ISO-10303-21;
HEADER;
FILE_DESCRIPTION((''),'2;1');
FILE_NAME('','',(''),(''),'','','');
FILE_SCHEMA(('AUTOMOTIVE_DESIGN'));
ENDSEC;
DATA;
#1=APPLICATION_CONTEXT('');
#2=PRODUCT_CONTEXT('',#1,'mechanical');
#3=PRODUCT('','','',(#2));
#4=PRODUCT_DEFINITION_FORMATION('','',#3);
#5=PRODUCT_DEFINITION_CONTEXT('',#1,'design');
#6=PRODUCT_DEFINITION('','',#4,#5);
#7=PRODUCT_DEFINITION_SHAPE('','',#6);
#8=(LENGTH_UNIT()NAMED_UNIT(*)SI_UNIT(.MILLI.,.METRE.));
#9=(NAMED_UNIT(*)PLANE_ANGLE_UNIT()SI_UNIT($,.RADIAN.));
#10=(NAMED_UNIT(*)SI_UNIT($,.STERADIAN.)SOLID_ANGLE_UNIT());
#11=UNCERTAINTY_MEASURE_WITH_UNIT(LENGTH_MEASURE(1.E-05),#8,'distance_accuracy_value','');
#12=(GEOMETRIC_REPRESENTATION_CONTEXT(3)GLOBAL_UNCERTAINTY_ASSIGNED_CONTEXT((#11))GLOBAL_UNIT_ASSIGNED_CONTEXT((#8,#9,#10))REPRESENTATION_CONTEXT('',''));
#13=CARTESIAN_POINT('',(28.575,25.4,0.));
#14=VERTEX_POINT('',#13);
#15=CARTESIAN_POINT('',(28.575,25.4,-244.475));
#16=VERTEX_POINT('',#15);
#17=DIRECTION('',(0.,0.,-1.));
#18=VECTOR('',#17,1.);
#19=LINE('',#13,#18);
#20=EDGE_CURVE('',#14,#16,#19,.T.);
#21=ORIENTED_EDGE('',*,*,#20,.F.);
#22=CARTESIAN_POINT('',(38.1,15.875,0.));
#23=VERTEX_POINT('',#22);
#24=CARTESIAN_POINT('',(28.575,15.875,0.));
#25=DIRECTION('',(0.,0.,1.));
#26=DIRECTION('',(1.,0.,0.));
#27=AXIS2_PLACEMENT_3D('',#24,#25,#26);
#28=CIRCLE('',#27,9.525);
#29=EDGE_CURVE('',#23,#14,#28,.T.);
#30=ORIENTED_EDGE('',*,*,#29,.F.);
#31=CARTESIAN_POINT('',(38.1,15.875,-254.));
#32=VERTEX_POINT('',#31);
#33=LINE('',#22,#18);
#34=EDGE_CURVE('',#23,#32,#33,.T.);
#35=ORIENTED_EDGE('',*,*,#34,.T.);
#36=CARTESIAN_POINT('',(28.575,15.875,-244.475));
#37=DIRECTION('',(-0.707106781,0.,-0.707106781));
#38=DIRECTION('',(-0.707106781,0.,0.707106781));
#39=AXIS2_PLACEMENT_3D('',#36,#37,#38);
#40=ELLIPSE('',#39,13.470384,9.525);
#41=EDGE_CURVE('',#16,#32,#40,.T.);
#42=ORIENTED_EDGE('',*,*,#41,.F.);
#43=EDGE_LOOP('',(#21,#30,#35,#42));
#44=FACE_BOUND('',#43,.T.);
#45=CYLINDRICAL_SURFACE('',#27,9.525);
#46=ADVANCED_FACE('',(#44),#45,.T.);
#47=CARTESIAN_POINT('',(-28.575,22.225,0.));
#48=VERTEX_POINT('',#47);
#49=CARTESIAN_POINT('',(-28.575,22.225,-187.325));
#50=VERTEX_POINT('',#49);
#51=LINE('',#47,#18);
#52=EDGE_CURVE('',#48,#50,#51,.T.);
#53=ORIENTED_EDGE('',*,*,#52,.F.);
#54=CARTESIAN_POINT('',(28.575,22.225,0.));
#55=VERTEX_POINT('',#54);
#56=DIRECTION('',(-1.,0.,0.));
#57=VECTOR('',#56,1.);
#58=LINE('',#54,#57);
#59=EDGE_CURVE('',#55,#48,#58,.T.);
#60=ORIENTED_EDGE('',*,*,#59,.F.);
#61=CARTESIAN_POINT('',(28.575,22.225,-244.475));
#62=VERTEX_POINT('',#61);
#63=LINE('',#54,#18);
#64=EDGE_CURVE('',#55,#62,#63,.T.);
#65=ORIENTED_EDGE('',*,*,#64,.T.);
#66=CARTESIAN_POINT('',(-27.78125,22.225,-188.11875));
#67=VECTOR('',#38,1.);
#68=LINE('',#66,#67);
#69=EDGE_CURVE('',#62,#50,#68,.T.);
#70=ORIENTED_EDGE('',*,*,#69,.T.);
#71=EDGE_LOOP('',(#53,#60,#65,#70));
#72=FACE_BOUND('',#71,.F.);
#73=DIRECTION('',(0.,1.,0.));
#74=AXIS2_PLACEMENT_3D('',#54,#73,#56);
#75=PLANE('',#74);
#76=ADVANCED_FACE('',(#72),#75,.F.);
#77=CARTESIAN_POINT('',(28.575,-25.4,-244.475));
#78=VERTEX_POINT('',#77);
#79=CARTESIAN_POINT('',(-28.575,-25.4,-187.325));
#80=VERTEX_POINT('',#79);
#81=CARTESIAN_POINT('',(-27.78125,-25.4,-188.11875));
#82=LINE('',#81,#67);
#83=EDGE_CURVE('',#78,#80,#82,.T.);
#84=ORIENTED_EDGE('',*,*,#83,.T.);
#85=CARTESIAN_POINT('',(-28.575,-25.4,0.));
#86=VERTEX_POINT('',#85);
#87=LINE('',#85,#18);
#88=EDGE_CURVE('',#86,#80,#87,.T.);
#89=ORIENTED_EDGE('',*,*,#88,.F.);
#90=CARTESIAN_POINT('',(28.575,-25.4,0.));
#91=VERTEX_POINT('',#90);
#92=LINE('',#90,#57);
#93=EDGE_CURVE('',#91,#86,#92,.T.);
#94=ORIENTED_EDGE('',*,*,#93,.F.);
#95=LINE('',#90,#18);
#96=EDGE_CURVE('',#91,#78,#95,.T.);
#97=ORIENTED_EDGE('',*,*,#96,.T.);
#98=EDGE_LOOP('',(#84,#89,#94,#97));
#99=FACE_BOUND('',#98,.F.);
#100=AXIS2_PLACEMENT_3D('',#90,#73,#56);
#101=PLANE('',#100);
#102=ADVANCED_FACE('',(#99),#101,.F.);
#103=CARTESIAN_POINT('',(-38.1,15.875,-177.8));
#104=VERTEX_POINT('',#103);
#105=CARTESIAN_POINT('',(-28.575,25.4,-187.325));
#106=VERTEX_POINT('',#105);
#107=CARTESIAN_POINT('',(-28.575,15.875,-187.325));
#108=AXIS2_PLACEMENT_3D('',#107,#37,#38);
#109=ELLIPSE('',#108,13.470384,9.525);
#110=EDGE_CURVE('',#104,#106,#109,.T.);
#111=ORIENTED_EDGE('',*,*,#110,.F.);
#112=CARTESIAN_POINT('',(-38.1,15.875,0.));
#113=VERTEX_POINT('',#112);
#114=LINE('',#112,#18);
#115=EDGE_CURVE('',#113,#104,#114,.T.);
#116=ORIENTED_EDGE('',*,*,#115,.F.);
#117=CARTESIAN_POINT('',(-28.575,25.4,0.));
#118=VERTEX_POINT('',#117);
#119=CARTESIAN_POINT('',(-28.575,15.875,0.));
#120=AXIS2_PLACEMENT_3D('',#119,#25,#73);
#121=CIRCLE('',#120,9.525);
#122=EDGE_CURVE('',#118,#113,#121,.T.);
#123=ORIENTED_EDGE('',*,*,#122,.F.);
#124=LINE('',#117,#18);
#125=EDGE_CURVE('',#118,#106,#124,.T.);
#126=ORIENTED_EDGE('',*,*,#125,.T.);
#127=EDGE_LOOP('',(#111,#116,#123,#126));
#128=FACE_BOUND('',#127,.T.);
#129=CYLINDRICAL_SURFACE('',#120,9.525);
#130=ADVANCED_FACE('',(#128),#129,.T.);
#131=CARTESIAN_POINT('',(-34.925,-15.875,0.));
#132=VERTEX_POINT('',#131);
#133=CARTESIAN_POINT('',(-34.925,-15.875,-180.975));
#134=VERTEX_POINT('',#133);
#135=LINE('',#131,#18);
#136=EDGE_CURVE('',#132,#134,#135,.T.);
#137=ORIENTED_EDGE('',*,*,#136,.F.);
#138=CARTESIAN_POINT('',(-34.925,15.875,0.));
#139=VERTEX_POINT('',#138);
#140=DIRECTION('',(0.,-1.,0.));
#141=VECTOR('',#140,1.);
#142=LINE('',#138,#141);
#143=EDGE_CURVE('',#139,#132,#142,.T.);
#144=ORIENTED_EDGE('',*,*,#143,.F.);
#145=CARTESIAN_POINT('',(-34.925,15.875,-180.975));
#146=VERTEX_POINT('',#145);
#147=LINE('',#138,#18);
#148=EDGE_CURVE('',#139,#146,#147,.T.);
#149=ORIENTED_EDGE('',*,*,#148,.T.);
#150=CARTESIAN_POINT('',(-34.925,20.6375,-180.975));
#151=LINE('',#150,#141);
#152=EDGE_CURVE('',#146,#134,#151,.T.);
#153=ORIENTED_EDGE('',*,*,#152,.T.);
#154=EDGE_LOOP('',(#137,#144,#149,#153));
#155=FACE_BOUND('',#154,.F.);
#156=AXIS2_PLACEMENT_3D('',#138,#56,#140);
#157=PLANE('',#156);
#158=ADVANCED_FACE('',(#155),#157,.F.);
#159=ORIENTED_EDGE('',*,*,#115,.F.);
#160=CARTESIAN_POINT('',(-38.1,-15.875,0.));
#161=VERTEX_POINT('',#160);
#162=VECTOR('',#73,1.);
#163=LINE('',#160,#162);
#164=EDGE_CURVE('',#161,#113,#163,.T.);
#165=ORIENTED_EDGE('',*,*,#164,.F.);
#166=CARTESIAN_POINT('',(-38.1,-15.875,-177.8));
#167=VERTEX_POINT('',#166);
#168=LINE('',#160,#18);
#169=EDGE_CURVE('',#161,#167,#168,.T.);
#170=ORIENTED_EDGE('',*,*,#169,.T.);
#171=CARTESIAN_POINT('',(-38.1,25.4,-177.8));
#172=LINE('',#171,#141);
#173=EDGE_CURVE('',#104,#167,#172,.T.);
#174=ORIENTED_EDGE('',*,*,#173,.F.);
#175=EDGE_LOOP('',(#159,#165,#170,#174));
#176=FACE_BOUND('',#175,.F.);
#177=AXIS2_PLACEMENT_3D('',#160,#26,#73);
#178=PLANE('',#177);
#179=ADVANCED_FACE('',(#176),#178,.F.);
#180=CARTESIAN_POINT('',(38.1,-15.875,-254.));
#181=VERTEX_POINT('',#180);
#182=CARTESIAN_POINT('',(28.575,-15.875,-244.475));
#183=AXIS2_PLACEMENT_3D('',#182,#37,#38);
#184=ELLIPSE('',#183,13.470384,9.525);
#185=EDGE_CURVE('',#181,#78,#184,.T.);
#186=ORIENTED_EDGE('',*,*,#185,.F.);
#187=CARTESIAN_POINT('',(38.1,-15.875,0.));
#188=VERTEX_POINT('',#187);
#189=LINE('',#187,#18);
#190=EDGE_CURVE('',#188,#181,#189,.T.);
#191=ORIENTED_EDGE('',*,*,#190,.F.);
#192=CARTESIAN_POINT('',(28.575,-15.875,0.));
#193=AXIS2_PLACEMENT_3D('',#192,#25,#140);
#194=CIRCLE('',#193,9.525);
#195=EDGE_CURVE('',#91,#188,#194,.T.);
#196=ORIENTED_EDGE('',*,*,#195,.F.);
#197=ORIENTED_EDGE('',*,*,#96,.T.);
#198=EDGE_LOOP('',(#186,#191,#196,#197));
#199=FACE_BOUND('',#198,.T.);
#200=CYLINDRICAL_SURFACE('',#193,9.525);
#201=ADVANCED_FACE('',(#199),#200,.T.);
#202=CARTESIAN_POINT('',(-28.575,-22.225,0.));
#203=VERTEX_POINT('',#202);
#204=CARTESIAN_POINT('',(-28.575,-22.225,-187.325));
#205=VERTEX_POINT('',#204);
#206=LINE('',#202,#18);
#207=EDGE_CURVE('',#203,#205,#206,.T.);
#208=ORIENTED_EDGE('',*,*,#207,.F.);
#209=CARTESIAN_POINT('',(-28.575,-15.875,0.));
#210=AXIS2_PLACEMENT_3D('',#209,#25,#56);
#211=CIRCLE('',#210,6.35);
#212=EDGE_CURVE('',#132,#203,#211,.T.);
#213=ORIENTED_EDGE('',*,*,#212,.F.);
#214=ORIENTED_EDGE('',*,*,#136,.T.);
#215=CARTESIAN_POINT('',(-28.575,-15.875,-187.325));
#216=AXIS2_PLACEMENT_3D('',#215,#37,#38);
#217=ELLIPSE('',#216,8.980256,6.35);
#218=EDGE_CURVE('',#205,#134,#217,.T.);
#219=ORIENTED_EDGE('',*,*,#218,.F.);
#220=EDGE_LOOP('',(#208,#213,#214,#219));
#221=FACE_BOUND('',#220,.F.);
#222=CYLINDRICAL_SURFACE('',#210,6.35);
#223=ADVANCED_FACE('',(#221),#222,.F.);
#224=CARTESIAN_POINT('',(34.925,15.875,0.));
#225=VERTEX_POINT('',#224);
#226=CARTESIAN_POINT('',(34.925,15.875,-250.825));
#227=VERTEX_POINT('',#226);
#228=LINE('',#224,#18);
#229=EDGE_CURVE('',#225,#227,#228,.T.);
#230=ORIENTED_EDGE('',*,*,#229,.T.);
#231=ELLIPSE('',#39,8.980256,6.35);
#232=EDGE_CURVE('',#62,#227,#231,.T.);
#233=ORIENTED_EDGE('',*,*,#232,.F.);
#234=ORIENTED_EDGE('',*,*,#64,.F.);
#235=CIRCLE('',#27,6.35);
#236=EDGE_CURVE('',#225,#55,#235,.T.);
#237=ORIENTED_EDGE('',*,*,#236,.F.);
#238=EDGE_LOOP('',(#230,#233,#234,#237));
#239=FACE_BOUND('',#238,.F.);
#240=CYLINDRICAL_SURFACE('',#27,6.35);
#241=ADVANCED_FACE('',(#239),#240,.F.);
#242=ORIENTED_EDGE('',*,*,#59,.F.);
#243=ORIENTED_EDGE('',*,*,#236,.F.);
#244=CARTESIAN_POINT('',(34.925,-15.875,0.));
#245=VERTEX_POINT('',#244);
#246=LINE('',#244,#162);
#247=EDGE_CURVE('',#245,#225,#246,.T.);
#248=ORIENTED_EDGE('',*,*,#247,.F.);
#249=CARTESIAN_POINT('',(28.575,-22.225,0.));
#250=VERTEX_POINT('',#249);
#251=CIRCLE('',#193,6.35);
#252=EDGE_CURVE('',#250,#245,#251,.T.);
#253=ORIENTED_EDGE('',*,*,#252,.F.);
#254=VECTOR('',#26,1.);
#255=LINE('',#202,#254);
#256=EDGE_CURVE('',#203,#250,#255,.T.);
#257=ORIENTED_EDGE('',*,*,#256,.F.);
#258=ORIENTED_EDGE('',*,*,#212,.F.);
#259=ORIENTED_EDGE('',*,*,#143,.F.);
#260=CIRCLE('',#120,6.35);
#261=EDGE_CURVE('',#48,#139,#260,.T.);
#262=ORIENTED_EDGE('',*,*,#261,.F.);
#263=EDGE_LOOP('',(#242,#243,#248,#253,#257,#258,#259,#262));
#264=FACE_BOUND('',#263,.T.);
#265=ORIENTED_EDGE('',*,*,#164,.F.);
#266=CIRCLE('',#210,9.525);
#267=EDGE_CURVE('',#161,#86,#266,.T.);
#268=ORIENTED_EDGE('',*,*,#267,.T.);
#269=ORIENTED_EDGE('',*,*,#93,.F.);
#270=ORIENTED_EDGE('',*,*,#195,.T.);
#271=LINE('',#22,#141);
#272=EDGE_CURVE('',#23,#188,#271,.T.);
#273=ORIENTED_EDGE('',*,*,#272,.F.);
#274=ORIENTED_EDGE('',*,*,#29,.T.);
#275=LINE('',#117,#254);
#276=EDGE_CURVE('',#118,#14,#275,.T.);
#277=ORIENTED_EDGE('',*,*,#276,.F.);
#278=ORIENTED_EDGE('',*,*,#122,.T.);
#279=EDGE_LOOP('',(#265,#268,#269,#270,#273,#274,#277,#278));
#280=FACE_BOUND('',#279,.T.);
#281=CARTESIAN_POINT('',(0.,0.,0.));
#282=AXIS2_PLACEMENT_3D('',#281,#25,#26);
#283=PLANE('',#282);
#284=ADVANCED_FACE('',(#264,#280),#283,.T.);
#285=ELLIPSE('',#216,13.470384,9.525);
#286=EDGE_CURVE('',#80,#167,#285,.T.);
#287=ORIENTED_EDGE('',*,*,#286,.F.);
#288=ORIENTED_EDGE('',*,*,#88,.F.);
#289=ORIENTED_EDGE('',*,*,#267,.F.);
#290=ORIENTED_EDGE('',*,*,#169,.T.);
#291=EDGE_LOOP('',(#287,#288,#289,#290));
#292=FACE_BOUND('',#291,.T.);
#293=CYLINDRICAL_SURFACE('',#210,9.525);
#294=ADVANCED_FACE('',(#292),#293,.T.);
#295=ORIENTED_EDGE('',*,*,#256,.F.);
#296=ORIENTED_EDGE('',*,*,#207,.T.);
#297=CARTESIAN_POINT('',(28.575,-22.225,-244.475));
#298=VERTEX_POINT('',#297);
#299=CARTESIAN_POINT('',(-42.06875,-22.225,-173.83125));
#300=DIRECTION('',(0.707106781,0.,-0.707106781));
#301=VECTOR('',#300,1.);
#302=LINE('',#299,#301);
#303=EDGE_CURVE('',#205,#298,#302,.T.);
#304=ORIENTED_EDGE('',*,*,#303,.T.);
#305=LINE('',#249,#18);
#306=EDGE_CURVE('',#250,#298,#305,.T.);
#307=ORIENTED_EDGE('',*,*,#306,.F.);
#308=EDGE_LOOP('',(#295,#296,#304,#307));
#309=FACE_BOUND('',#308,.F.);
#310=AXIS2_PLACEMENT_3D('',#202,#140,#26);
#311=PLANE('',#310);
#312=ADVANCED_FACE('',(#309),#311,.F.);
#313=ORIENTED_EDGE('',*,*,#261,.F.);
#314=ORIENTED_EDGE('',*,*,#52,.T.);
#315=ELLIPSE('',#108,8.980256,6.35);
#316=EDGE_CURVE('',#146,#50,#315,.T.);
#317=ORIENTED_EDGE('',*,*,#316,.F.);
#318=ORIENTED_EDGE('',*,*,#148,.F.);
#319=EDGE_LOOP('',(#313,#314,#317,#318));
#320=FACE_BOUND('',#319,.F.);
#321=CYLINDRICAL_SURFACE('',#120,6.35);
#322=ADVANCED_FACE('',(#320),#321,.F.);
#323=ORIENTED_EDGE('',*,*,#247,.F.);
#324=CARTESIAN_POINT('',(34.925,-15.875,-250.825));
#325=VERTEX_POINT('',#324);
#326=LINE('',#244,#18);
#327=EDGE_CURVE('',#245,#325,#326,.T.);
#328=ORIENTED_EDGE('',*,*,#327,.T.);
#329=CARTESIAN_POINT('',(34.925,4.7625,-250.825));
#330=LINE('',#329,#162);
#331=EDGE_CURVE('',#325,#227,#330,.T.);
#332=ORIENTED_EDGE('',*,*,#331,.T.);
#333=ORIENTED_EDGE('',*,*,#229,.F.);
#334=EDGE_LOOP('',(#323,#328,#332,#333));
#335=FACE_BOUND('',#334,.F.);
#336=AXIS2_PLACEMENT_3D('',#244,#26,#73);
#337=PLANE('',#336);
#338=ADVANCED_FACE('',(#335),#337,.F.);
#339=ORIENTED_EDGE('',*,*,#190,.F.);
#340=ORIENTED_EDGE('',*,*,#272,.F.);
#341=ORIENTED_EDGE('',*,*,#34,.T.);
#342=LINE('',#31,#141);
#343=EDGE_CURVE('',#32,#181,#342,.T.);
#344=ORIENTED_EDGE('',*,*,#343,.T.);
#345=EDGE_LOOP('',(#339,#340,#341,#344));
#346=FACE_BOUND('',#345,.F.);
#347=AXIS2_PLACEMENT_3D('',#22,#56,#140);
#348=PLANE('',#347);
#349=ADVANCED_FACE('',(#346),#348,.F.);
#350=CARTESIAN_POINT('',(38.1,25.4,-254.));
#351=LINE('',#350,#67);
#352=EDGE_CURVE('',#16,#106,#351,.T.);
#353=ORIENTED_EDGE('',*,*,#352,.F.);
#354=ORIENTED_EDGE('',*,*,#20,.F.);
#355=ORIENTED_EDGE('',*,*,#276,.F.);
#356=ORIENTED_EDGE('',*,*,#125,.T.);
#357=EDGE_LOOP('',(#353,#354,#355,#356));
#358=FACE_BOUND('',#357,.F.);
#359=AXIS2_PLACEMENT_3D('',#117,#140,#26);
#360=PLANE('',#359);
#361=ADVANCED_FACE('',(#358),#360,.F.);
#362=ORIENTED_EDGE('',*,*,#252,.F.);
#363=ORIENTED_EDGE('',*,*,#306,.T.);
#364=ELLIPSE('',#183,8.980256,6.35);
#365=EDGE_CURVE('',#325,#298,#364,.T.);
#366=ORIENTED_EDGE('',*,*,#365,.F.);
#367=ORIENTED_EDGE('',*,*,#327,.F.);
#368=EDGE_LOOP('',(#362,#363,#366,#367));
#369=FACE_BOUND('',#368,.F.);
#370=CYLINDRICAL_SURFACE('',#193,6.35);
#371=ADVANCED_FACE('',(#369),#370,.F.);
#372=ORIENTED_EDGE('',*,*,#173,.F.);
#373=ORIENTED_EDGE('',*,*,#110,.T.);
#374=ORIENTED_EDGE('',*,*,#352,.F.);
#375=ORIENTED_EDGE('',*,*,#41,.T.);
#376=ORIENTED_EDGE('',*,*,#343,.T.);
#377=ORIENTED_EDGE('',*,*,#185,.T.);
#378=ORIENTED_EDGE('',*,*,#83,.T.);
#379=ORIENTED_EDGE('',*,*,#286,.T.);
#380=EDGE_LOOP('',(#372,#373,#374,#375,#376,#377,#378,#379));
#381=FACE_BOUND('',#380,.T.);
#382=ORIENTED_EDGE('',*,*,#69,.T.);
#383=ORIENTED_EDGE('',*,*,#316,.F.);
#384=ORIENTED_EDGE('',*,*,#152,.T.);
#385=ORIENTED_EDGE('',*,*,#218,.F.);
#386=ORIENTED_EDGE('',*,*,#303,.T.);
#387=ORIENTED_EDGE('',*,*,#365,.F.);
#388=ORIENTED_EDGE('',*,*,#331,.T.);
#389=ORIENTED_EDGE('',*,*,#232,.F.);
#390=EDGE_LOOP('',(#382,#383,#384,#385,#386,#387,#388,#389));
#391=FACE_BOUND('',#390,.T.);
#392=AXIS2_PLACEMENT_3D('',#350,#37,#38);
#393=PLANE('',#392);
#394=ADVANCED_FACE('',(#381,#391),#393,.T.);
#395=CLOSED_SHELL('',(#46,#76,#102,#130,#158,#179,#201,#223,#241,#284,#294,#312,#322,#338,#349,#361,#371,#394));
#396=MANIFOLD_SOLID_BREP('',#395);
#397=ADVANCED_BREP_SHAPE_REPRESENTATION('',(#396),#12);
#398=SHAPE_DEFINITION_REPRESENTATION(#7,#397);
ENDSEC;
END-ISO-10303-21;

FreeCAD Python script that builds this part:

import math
import FreeCAD as App
import Part
import Sketcher
Q = App.Units.Quantity

doc = App.newDocument("Part")
body = doc.addObject("PartDesign::Body", "Body")

sketch1 = body.newObject("Sketcher::SketchObject", "Sketch")
sketch1.AttachmentSupport = (doc.getObject("XY_Plane"), [""])
sketch1.MapMode = "FlatFace"
sketch1.addGeometry([
    Part.LineSegment(App.Vector(-29, -25, 0), App.Vector(29, -25, 0)),
    Part.ArcOfCircle(Part.Circle(App.Vector(29, -16, 0), App.Vector(0, 0, 1), 10), math.radians(-90), math.radians(0)),
    Part.LineSegment(App.Vector(38, -16, 0), App.Vector(38, 16, 0)),
    Part.ArcOfCircle(Part.Circle(App.Vector(29, 16, 0), App.Vector(0, 0, 1), 10), math.radians(0), math.radians(90)),
    Part.LineSegment(App.Vector(29, 25, 0), App.Vector(-29, 25, 0)),
    Part.ArcOfCircle(Part.Circle(App.Vector(-29, 16, 0), App.Vector(0, 0, 1), 10), math.radians(90), math.radians(180)),
    Part.LineSegment(App.Vector(-38, 16, 0), App.Vector(-38, -16, 0)),
    Part.ArcOfCircle(Part.Circle(App.Vector(-29, -16, 0), App.Vector(0, 0, 1), 10), math.radians(180), math.radians(270)),
    Part.LineSegment(App.Vector(-29, 22, 0), App.Vector(29, 22, 0)),
    Part.ArcOfCircle(Part.Circle(App.Vector(29, 16, 0), App.Vector(0, 0, 1), 6), math.radians(0), math.radians(90)),
    Part.LineSegment(App.Vector(35, 16, 0), App.Vector(35, -16, 0)),
    Part.ArcOfCircle(Part.Circle(App.Vector(29, -16, 0), App.Vector(0, 0, 1), 6), math.radians(-90), math.radians(0)),
    Part.LineSegment(App.Vector(29, -22, 0), App.Vector(-29, -22, 0)),
    Part.ArcOfCircle(Part.Circle(App.Vector(-29, -16, 0), App.Vector(0, 0, 1), 6), math.radians(180), math.radians(270)),
    Part.LineSegment(App.Vector(-35, -16, 0), App.Vector(-35, 16, 0)),
    Part.ArcOfCircle(Part.Circle(App.Vector(-29, 16, 0), App.Vector(0, 0, 1), 6), math.radians(90), math.radians(180)),
], False)
sketch1.addConstraint([
    Sketcher.Constraint("Tangent", 0, 2, 1, 1),
    Sketcher.Constraint("Tangent", 1, 2, 2, 1),
    Sketcher.Constraint("Tangent", 2, 2, 3, 1),
    Sketcher.Constraint("Tangent", 3, 2, 4, 1),
    Sketcher.Constraint("Tangent", 4, 2, 5, 1),
    Sketcher.Constraint("Tangent", 5, 2, 6, 1),
    Sketcher.Constraint("Tangent", 6, 2, 7, 1),
    Sketcher.Constraint("Tangent", 7, 2, 0, 1),
    Sketcher.Constraint("Tangent", 8, 2, 9, 2),
    Sketcher.Constraint("Tangent", 9, 1, 10, 1),
    Sketcher.Constraint("Tangent", 10, 2, 11, 2),
    Sketcher.Constraint("Tangent", 11, 1, 12, 1),
    Sketcher.Constraint("Tangent", 12, 2, 13, 2),
    Sketcher.Constraint("Tangent", 13, 1, 14, 1),
    Sketcher.Constraint("Tangent", 14, 2, 15, 2),
    Sketcher.Constraint("Tangent", 15, 1, 8, 1),
    Sketcher.Constraint("Horizontal", 0),
    Sketcher.Constraint("Vertical", 2),
    Sketcher.Constraint("Horizontal", 4),
    Sketcher.Constraint("Vertical", 6),
    Sketcher.Constraint("Horizontal", 8),
    Sketcher.Constraint("Vertical", 10),
    Sketcher.Constraint("Horizontal", 12),
    Sketcher.Constraint("Vertical", 14),
    Sketcher.Constraint("Coincident", 9, 3, 3, 3),
    Sketcher.Constraint("Coincident", 11, 3, 1, 3),
    Sketcher.Constraint("Coincident", 13, 3, 7, 3),
    Sketcher.Constraint("Equal", 1, 3),
    Sketcher.Constraint("Equal", 3, 5),
    Sketcher.Constraint("Equal", 5, 7),
    Sketcher.Constraint("Equal", 13, 15),
    Sketcher.Constraint("Symmetric", 1, 3, 5, 3, -1, 1),
    Sketcher.Constraint("Radius", 1, Q("0.375 in")),
    Sketcher.Constraint("Radius", 9, Q("0.25 in")),
    Sketcher.Constraint("DistanceY", 0, 2, -1, 1, Q("1 in")),
    Sketcher.Constraint("DistanceX", 0, 1, 0, 2, Q("2.25 in")),
])
pad1 = body.newObject("PartDesign::Pad", "Pad")
pad1.Profile = sketch1
pad1.Length = Q("10 in")
pad1.Reversed = True

sketch2 = body.newObject("Sketcher::SketchObject", "Sketch001")
sketch2.AttachmentSupport = (doc.getObject("XZ_Plane"), [""])
sketch2.MapMode = "FlatFace"
sketch2.AttachmentOffset = App.Placement(App.Vector(0, 0, -1 * 25.4), App.Rotation())
sketch2.addGeometry([
    Part.LineSegment(App.Vector(-38, -178, 0), App.Vector(38, -254, 0)),
    Part.LineSegment(App.Vector(38, -254, 0), App.Vector(-38, -254, 0)),
    Part.LineSegment(App.Vector(-38, -254, 0), App.Vector(-38, -178, 0)),
], False)
sketch2.addConstraint([
    Sketcher.Constraint("Coincident", 0, 2, 1, 1),
    Sketcher.Constraint("Coincident", 1, 2, 2, 1),
    Sketcher.Constraint("Coincident", 2, 2, 0, 1),
    Sketcher.Constraint("Horizontal", 1),
    Sketcher.Constraint("Vertical", 2),
    Sketcher.Constraint("Equal", 1, 2),
    Sketcher.Constraint("DistanceX", 1, 2, 1, 1, Q("3 in")),
    Sketcher.Constraint("DistanceY", 0, 2, -1, 1, Q("10 in")),
    Sketcher.Constraint("DistanceX", -1, 1, 0, 2, Q("1.5 in")),
])
pocket1 = body.newObject("PartDesign::Pocket", "Pocket")
pocket1.Profile = sketch2
pocket1.Type = "ThroughAll"
pocket1.Reversed = True

doc.recompute()
